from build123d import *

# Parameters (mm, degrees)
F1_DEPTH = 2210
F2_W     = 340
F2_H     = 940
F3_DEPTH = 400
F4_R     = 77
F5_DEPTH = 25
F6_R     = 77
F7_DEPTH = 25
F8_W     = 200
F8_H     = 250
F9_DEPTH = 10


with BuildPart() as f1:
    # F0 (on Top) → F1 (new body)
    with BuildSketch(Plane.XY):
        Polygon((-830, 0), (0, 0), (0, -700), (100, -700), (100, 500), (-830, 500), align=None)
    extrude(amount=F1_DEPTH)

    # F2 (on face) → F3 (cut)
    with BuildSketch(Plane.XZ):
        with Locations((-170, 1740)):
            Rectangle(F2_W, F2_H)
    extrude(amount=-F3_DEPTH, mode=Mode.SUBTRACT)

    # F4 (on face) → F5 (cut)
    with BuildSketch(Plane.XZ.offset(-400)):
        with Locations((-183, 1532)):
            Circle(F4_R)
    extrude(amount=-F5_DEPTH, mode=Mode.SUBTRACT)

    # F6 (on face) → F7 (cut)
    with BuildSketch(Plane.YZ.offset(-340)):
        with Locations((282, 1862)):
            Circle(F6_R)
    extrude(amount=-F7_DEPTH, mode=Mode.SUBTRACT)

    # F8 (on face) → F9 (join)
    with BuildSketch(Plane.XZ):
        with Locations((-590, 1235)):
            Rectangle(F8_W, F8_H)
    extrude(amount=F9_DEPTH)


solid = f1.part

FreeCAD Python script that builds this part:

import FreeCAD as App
import Part
import Sketcher
from FreeCAD import Vector


def add_polygon(sketch, points):
    """Adds a closed chain of lines whose ends are joined by coincident constraints."""
    first, n = sketch.GeometryCount, len(points)
    for a, b in zip(points, points[1:] + points[:1]):
        sketch.addGeometry(Part.LineSegment(App.Vector(*a, 0), App.Vector(*b, 0)), False)
    for i in range(n):
        sketch.addConstraint(Sketcher.Constraint("Coincident", first + i, 2, first + (i + 1) % n, 1))

doc = App.newDocument("Part")
params = doc.addObject("Spreadsheet::Sheet", "Params")
for row, (alias, value) in enumerate([
    ("sketch1_width", "830 mm"),
    ("sketch1_width2", "100 mm"),
    ("sketch1_height", "700 mm"),
    ("sketch1_height2", "1200 mm"),
    ("pad1_length", "2210 mm"),
    ("sketch2_width", "340 mm"),
    ("sketch2_height", "940 mm"),
    ("pocket1_length", "400 mm"),
    ("sketch3_diameter", "154 mm"),
    ("pocket2_length", "25 mm"),
    ("sketch4_diameter", "154 mm"),
    ("pocket3_length", "25 mm"),
    ("sketch5_width", "200 mm"),
    ("sketch5_height", "250 mm"),
    ("pad2_length", "10 mm"),
], start=1):
    params.set(f"A{row}", alias)
    params.set(f"B{row}", "=" + value)
    params.setAlias(f"B{row}", alias)

body = doc.addObject("PartDesign::Body", "Body")

# Sketch on XY plane
sketch1 = doc.addObject("Sketcher::SketchObject", "Sketch")
body.addObject(sketch1)
sketch1.AttachmentSupport = (doc.XY_Plane, [""])
sketch1.MapMode = "FlatFace"
add_polygon(sketch1, [(-830, 0), (0, 0), (0, -700), (100, -700), (100, 500), (-830, 500)])  # lines 0-5
sketch1.addConstraint(Sketcher.Constraint("Horizontal", 0))
sketch1.addConstraint(Sketcher.Constraint("Vertical", 1))
sketch1.addConstraint(Sketcher.Constraint("Horizontal", 2))
sketch1.addConstraint(Sketcher.Constraint("Vertical", 3))
sketch1.addConstraint(Sketcher.Constraint("Horizontal", 4))
sketch1.addConstraint(Sketcher.Constraint("Vertical", 5))
sketch1.addConstraint(Sketcher.Constraint("Coincident", 0, 2, -1, 1))
sketch1.addConstraint(Sketcher.Constraint("DistanceX", 0, 1, 0, 2, 830.0))
sketch1.addConstraint(Sketcher.Constraint("DistanceX", 2, 1, 2, 2, 100.0))
sketch1.addConstraint(Sketcher.Constraint("DistanceY", 1, 2, 1, 1, 700.0))
sketch1.addConstraint(Sketcher.Constraint("DistanceY", 3, 1, 3, 2, 1200.0))
sketch1.setExpression("Constraints[13]", "Params.sketch1_width")
sketch1.setExpression("Constraints[14]", "Params.sketch1_width2")
sketch1.setExpression("Constraints[15]", "Params.sketch1_height")
sketch1.setExpression("Constraints[16]", "Params.sketch1_height2")
pad1 = doc.addObject("PartDesign::Pad", "Pad")
body.addObject(pad1)
pad1.Profile = sketch1
pad1.setExpression("Length", "Params.pad1_length")

# Sketch on XZ plane
sketch2 = doc.addObject("Sketcher::SketchObject", "Sketch001")
body.addObject(sketch2)
sketch2.AttachmentSupport = (doc.XZ_Plane, [""])
sketch2.MapMode = "FlatFace"
add_polygon(sketch2, [(-340, 2210), (-340, 1270), (0, 1270), (0, 2210)])  # lines 0-3
sketch2.addConstraint(Sketcher.Constraint("Vertical", 0))
sketch2.addConstraint(Sketcher.Constraint("Horizontal", 1))
sketch2.addConstraint(Sketcher.Constraint("Vertical", 2))
sketch2.addConstraint(Sketcher.Constraint("Horizontal", 3))
sketch2.addConstraint(Sketcher.Constraint("PointOnObject", 1, 2, -2))
sketch2.addConstraint(Sketcher.Constraint("DistanceX", 1, 1, 1, 2, 340.0))
sketch2.addConstraint(Sketcher.Constraint("DistanceY", 0, 2, 0, 1, 940.0))
sketch2.addConstraint(Sketcher.Constraint("DistanceY", -1, 1, 0, 2, 1270.0))
sketch2.setExpression("Constraints[9]", "Params.sketch2_width")
sketch2.setExpression("Constraints[10]", "Params.sketch2_height")
pocket1 = doc.addObject("PartDesign::Pocket", "Pocket")
body.addObject(pocket1)
pocket1.Profile = sketch2
pocket1.setExpression("Length", "Params.pocket1_length")

# Sketch on XZ plane
sketch3 = doc.addObject("Sketcher::SketchObject", "Sketch002")
body.addObject(sketch3)
sketch3.AttachmentSupport = (doc.XZ_Plane, [""])
sketch3.MapMode = "FlatFace"
sketch3.AttachmentOffset = App.Placement(Vector(0, 0, -400), App.Rotation())
sketch3.addGeometry(Part.Circle(Vector(-183, 1532, 0), Vector(0, 0, 1), 77), False)
sketch3.addConstraint(Sketcher.Constraint("Diameter", 0, 154.0))
sketch3.addConstraint(Sketcher.Constraint("DistanceX", 0, 3, -1, 1, 183.0))
sketch3.addConstraint(Sketcher.Constraint("DistanceY", -1, 1, 0, 3, 1532.0))
sketch3.setExpression("Constraints[0]", "Params.sketch3_diameter")
pocket2 = doc.addObject("PartDesign::Pocket", "Pocket001")
body.addObject(pocket2)
pocket2.Profile = sketch3
pocket2.setExpression("Length", "Params.pocket2_length")

# Sketch on YZ plane
sketch4 = doc.addObject("Sketcher::SketchObject", "Sketch003")
body.addObject(sketch4)
sketch4.AttachmentSupport = (doc.YZ_Plane, [""])
sketch4.MapMode = "FlatFace"
sketch4.AttachmentOffset = App.Placement(Vector(0, 0, -340), App.Rotation())
sketch4.addGeometry(Part.Circle(Vector(282, 1862, 0), Vector(0, 0, 1), 77), False)
sketch4.addConstraint(Sketcher.Constraint("Diameter", 0, 154.0))
sketch4.addConstraint(Sketcher.Constraint("DistanceX", -1, 1, 0, 3, 282.0))
sketch4.addConstraint(Sketcher.Constraint("DistanceY", -1, 1, 0, 3, 1862.0))
sketch4.setExpression("Constraints[0]", "Params.sketch4_diameter")
pocket3 = doc.addObject("PartDesign::Pocket", "Pocket002")
body.addObject(pocket3)
pocket3.Profile = sketch4
pocket3.setExpression("Length", "Params.pocket3_length")

# Sketch on XZ plane
sketch5 = doc.addObject("Sketcher::SketchObject", "Sketch004")
body.addObject(sketch5)
sketch5.AttachmentSupport = (doc.XZ_Plane, [""])
sketch5.MapMode = "FlatFace"
add_polygon(sketch5, [(-690, 1360), (-690, 1110), (-490, 1110), (-490, 1360)])  # lines 0-3
sketch5.addConstraint(Sketcher.Constraint("Vertical", 0))
sketch5.addConstraint(Sketcher.Constraint("Horizontal", 1))
sketch5.addConstraint(Sketcher.Constraint("Vertical", 2))
sketch5.addConstraint(Sketcher.Constraint("Horizontal", 3))
sketch5.addConstraint(Sketcher.Constraint("DistanceX", 1, 1, 1, 2, 200.0))
sketch5.addConstraint(Sketcher.Constraint("DistanceY", 0, 2, 0, 1, 250.0))
sketch5.addConstraint(Sketcher.Constraint("DistanceX", 0, 2, -1, 1, 690.0))
sketch5.addConstraint(Sketcher.Constraint("DistanceY", -1, 1, 0, 2, 1110.0))
sketch5.setExpression("Constraints[8]", "Params.sketch5_width")
sketch5.setExpression("Constraints[9]", "Params.sketch5_height")
pad2 = doc.addObject("PartDesign::Pad", "Pad001")
body.addObject(pad2)
pad2.Profile = sketch5
pad2.setExpression("Length", "Params.pad2_length")

doc.recompute()
